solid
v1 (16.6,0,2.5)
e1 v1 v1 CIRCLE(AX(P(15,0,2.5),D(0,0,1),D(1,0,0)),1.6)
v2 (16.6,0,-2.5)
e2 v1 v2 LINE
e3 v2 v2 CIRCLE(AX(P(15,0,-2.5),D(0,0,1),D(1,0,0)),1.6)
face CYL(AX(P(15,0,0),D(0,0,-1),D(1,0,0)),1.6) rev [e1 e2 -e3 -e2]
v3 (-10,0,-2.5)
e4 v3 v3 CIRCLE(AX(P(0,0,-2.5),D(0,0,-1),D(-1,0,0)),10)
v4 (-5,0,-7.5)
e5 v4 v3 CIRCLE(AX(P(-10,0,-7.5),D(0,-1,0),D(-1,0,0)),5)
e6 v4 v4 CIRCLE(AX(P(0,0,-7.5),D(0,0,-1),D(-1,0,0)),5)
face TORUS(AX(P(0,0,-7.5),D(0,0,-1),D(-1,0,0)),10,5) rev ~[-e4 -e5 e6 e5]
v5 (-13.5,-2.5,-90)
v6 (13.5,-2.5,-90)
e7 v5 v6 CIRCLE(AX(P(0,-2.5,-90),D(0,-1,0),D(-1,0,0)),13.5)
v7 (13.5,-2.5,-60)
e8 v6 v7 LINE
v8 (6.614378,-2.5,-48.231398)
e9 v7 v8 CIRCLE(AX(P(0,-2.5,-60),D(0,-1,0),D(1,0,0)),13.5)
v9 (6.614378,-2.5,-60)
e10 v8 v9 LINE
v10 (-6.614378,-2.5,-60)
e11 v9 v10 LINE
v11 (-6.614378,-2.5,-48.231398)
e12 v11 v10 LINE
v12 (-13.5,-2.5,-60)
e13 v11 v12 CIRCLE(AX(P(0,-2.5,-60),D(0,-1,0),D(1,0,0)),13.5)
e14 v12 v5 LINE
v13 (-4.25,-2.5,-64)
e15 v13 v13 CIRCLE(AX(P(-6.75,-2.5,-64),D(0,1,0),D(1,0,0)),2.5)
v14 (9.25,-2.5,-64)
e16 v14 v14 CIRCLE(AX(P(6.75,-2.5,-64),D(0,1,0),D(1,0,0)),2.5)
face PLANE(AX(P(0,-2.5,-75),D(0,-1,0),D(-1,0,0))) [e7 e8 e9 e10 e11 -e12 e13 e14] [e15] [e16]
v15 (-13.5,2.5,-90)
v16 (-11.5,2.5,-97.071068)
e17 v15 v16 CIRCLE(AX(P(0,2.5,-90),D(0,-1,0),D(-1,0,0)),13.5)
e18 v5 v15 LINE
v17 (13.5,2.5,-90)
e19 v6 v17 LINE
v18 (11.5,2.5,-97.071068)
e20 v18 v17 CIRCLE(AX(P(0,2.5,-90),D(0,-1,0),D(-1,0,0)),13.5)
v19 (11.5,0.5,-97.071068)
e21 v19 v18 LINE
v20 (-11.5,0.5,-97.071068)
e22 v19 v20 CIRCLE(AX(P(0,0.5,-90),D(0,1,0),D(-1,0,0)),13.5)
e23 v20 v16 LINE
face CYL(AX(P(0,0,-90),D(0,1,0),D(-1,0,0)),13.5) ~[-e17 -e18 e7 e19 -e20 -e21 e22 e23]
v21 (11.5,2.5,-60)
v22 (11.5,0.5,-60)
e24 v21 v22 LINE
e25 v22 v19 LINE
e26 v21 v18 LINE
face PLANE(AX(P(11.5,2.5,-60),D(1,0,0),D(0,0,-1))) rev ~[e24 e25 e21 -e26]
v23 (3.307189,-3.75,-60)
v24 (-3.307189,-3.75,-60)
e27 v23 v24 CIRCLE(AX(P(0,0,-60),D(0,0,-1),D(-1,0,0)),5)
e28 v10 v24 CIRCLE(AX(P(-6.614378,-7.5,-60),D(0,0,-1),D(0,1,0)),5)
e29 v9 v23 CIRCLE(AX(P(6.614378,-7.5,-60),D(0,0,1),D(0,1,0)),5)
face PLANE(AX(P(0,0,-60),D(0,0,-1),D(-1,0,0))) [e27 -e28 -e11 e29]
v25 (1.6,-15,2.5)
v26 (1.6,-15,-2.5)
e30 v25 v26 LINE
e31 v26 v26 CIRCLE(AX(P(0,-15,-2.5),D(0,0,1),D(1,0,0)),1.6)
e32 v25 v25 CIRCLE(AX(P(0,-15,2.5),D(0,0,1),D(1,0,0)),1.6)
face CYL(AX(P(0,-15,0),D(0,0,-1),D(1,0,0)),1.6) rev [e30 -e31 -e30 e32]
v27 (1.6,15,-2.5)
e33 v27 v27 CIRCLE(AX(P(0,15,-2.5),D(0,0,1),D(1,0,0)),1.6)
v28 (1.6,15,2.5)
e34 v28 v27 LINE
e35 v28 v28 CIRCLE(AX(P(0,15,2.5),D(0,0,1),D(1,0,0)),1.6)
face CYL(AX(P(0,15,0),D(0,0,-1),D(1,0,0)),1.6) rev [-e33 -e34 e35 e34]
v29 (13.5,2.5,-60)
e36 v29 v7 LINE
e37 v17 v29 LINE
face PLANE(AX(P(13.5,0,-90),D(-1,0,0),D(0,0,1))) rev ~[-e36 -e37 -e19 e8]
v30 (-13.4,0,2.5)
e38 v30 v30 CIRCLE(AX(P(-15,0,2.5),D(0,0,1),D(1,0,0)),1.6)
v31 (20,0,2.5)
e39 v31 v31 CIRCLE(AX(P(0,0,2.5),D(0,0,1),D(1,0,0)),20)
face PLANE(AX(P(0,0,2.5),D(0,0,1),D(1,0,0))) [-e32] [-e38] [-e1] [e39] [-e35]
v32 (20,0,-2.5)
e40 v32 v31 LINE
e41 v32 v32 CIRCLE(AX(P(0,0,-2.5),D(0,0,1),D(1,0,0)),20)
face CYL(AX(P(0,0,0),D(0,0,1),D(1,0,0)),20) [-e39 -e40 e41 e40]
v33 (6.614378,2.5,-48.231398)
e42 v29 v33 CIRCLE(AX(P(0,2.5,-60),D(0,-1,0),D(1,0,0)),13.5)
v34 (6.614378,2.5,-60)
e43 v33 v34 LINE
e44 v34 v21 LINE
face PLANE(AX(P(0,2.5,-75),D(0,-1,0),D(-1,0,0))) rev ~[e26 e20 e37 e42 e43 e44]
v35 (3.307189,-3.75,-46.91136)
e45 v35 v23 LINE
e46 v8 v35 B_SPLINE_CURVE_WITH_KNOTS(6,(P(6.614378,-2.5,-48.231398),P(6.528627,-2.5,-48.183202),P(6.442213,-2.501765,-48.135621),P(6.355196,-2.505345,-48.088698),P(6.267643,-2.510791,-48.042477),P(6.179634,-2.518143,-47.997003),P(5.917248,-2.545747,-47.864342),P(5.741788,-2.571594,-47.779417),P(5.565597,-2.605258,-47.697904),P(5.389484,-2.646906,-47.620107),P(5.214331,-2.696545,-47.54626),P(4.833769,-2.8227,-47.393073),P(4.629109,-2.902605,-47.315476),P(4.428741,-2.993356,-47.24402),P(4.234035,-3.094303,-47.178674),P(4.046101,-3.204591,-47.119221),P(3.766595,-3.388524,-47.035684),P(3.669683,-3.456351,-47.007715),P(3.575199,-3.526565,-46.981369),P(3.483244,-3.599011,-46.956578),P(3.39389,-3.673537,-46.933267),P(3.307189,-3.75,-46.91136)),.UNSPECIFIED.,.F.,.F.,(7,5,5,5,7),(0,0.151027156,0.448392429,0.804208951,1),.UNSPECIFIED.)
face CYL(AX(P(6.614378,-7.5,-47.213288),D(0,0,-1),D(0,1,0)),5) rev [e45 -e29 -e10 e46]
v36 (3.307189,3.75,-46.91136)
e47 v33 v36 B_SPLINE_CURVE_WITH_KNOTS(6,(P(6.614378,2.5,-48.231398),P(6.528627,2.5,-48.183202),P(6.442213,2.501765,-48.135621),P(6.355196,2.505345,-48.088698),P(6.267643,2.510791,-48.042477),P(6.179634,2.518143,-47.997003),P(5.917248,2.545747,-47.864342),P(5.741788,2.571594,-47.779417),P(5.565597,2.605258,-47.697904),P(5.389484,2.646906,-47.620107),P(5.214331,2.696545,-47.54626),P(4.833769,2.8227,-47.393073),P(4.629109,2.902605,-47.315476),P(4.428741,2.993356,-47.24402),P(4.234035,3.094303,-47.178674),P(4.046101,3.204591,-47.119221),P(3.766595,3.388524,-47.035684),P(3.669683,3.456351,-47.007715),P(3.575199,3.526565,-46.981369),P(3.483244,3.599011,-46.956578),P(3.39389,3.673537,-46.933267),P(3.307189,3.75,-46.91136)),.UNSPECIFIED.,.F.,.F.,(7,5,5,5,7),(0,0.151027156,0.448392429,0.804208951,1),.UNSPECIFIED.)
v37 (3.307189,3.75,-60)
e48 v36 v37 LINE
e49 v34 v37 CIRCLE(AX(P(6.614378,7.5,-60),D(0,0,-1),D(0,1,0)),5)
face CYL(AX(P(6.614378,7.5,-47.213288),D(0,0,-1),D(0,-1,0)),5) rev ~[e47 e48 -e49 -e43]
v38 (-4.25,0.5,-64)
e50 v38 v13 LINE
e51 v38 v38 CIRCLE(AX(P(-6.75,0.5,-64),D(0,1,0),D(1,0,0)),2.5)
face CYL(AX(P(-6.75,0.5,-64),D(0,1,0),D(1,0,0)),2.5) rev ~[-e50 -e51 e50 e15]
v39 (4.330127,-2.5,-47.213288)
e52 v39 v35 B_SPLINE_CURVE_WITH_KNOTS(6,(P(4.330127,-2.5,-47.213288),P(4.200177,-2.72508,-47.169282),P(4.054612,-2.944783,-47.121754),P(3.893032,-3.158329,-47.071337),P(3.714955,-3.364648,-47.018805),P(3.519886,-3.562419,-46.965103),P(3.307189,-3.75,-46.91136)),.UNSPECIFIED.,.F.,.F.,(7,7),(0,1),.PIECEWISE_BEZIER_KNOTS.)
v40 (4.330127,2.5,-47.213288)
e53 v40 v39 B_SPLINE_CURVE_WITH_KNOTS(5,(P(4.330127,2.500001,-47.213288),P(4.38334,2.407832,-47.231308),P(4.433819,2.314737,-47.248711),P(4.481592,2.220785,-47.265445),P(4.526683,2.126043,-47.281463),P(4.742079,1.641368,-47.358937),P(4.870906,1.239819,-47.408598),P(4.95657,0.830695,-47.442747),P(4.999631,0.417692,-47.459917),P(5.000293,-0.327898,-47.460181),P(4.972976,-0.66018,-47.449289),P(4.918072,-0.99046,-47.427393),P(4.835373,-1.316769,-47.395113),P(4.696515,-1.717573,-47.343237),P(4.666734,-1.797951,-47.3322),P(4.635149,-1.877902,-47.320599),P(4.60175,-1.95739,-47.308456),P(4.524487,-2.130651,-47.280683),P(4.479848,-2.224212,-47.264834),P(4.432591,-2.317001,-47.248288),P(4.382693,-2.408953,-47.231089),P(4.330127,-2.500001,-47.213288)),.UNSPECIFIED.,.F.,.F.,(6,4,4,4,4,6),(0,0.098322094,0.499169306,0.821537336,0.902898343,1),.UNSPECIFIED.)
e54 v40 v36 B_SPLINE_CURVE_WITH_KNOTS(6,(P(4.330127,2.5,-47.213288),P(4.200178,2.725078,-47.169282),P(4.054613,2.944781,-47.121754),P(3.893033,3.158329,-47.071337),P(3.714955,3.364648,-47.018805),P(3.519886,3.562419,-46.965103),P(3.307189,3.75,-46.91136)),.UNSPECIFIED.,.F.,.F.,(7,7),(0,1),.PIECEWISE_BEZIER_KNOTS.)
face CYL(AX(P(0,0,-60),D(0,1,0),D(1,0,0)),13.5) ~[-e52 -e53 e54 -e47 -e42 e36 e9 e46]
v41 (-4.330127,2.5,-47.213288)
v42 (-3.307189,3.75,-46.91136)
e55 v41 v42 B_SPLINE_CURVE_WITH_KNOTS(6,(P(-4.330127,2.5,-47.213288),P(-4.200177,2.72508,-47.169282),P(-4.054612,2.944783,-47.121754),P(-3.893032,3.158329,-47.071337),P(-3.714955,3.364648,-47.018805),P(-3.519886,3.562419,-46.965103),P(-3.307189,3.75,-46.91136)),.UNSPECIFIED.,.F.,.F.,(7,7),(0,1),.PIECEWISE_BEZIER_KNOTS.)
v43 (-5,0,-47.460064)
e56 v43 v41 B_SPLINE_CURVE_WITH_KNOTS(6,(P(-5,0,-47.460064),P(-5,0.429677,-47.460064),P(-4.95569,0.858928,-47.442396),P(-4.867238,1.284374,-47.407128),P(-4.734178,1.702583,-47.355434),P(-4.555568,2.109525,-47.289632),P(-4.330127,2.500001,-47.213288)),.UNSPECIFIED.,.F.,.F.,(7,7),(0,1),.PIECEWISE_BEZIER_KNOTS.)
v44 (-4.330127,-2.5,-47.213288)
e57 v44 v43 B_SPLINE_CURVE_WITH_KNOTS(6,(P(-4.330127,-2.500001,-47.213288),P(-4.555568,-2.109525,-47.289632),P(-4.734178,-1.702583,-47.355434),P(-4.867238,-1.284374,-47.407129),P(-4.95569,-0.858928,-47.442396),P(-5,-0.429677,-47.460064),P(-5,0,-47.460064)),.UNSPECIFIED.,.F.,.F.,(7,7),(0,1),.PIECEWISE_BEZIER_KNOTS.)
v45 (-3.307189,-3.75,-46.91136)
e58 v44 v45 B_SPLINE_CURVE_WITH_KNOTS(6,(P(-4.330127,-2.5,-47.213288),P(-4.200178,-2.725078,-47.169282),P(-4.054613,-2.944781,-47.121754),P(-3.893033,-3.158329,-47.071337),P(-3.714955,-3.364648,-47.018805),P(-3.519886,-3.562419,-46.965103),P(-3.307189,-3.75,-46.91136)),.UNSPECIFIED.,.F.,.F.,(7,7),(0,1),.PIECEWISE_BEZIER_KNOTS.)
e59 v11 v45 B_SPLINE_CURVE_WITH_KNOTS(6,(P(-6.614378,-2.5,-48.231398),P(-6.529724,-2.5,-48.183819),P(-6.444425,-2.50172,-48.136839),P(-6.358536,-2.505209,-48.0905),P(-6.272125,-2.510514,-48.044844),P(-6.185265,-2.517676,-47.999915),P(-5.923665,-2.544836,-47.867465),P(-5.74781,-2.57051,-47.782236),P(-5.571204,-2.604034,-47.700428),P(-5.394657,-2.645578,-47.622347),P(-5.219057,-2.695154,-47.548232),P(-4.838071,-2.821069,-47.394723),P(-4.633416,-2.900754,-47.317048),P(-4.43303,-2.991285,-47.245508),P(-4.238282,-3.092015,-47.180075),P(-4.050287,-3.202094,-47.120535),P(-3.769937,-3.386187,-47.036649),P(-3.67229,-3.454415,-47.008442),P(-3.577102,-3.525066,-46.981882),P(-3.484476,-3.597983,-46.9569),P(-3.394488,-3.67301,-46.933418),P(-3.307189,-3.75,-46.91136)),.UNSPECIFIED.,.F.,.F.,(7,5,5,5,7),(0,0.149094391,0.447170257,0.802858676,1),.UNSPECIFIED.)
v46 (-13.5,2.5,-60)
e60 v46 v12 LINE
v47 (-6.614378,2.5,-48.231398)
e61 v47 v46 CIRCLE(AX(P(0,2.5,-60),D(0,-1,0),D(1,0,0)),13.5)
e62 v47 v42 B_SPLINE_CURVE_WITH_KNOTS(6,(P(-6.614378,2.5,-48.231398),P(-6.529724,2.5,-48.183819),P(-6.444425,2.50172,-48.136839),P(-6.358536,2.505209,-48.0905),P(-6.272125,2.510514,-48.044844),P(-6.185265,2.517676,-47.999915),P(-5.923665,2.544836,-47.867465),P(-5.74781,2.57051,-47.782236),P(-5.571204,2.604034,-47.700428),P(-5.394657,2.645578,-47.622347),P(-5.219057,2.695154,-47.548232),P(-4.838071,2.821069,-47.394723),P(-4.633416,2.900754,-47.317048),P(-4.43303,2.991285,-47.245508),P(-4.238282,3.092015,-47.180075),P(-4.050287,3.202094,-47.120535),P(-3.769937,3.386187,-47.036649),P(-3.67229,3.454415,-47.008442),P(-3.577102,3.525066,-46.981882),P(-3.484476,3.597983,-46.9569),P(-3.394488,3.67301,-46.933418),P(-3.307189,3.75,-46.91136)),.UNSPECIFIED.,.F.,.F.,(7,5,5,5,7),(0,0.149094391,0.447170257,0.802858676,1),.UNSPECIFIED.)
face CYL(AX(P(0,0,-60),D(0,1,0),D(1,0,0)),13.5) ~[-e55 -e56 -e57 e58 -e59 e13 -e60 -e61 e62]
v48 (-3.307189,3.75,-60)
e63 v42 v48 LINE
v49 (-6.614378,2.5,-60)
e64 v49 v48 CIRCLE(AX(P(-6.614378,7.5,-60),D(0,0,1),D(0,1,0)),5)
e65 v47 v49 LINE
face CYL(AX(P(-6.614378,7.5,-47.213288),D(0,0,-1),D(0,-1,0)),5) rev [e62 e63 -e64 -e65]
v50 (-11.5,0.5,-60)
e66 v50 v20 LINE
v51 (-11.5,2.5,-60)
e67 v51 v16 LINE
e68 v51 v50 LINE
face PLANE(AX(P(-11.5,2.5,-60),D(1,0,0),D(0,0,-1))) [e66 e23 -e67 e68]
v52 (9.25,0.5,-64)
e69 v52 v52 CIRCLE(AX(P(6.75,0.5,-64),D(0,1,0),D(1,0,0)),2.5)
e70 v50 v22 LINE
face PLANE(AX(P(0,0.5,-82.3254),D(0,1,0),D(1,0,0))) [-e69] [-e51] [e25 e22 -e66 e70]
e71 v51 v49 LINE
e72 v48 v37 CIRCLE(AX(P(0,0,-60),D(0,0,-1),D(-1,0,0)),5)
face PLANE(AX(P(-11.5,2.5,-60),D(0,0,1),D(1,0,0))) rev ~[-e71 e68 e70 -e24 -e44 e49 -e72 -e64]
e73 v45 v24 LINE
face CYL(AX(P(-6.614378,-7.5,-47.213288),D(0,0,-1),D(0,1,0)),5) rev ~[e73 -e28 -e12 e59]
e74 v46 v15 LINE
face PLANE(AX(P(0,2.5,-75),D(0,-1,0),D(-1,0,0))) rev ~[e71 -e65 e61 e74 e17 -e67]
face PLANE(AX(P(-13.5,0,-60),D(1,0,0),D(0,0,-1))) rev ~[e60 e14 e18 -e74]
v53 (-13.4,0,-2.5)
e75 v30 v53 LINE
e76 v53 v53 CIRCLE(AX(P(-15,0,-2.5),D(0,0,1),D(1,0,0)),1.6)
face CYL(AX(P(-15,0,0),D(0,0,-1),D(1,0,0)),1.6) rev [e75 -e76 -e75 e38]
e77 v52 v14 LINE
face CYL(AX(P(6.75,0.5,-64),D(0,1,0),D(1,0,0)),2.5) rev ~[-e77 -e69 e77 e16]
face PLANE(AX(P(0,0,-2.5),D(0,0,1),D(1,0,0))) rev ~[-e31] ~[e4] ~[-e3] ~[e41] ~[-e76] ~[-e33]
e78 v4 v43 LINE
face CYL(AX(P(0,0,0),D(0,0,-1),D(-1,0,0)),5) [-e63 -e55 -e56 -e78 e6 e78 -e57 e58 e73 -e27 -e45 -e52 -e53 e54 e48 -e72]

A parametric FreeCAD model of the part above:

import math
import FreeCAD as App
import Part
import Sketcher


def edges_at(feature, points):
    """Names of the edges that pass closest to the given points."""
    edges = feature.Shape.Edges
    near = lambda p: min(range(len(edges)), key=lambda i: edges[i].distToShape(Part.Vertex(*p))[0])
    return sorted({f"Edge{near(p) + 1}" for p in points})


def add_polygon(sketch, points):
    """Adds a closed chain of lines whose ends are joined by coincident constraints."""
    first, n = sketch.GeometryCount, len(points)
    for a, b in zip(points, points[1:] + points[:1]):
        sketch.addGeometry(Part.LineSegment(App.Vector(*a, 0), App.Vector(*b, 0)), False)
    for i in range(n):
        sketch.addConstraint(Sketcher.Constraint("Coincident", first + i, 2, first + (i + 1) % n, 1))

doc = App.newDocument("Part")
body = doc.addObject("PartDesign::Body", "Body")

sketch1 = doc.addObject("Sketcher::SketchObject", "Sketch")
body.addObject(sketch1)
sketch1.AttachmentSupport = (doc.XY_Plane, [""])
sketch1.MapMode = "FlatFace"
sketch1.addGeometry([
    Part.Circle(App.Vector(0, 0, 0), App.Vector(0, 0, 1), 20),
    Part.Circle(App.Vector(0, -15, 0), App.Vector(0, 0, 1), 1.6),
    Part.Circle(App.Vector(-15, 0, 0), App.Vector(0, 0, 1), 1.6),
    Part.Circle(App.Vector(0, 15, 0), App.Vector(0, 0, 1), 1.6),
    Part.Circle(App.Vector(15, 0, 0), App.Vector(0, 0, 1), 1.6),
], False)
sketch1.addConstraint([
    Sketcher.Constraint("Coincident", 0, 3, -1, 1),
    Sketcher.Constraint("Equal", 1, 2),
    Sketcher.Constraint("Equal", 2, 3),
    Sketcher.Constraint("Equal", 3, 4),
    Sketcher.Constraint("Symmetric", 1, 3, 3, 3, -1, 1),
    Sketcher.Constraint("Symmetric", 2, 3, 4, 3, -1, 1),
    Sketcher.Constraint("PointOnObject", 1, 3, -2),
    Sketcher.Constraint("PointOnObject", 2, 3, -1),
    Sketcher.Constraint("Diameter", 0, 40.0),
    Sketcher.Constraint("Diameter", 1, 3.2),
    Sketcher.Constraint("DistanceY", 1, 3, -1, 1, 15.0),
    Sketcher.Constraint("DistanceX", 2, 3, -1, 1, 15.0),
])
pad1 = doc.addObject("PartDesign::Pad", "Pad")
body.addObject(pad1)
pad1.Profile = sketch1
pad1.Length = 5
pad1.Midplane = True

sketch2 = doc.addObject("Sketcher::SketchObject", "Sketch001")
body.addObject(sketch2)
sketch2.AttachmentSupport = (doc.XY_Plane, [""])
sketch2.MapMode = "FlatFace"
sketch2.addGeometry(Part.Circle(App.Vector(0, 0, 0), App.Vector(0, 0, 1), 5), False)
sketch2.addConstraint([
    Sketcher.Constraint("Coincident", 0, 3, -1, 1),
    Sketcher.Constraint("Diameter", 0, 10.0),
])

sketch3 = doc.addObject("Sketcher::SketchObject", "Sketch002")
body.addObject(sketch3)
sketch3.AttachmentSupport = (doc.XZ_Plane, [""])
sketch3.MapMode = "FlatFace"
sketch3.addGeometry(Part.LineSegment(App.Vector(0, 0, 0), App.Vector(0, -60, 0)), False)
sketch3.addConstraint([
    Sketcher.Constraint("Vertical", 0),
    Sketcher.Constraint("Coincident", 0, 1, -1, 1),
    Sketcher.Constraint("DistanceY", 0, 2, 0, 1, 60.0),
])
doc.recompute()

additivepipe = doc.addObject("PartDesign::AdditivePipe", "AdditivePipe")
body.addObject(additivepipe)
additivepipe.Profile = sketch2
additivepipe.Spine = (sketch3, ["Edge1"])

sketch4 = doc.addObject("Sketcher::SketchObject", "Sketch003")
body.addObject(sketch4)
sketch4.AttachmentSupport = (doc.XZ_Plane, [""])
sketch4.MapMode = "FlatFace"
sketch4.addGeometry([
    Part.LineSegment(App.Vector(13.5, -60, 0), App.Vector(13.5, -90, 0)),
    Part.ArcOfCircle(Part.Circle(App.Vector(0, -90, 0), App.Vector(0, 0, 1), 13.5), math.radians(180), math.radians(360)),
    Part.LineSegment(App.Vector(-13.5, -90, 0), App.Vector(-13.5, -60, 0)),
    Part.ArcOfCircle(Part.Circle(App.Vector(0, -60, 0), App.Vector(0, 0, 1), 13.5), math.radians(0), math.radians(180)),
], False)
sketch4.addConstraint([
    Sketcher.Constraint("Tangent", 0, 2, 1, 2),
    Sketcher.Constraint("Tangent", 1, 1, 2, 1),
    Sketcher.Constraint("Tangent", 2, 2, 3, 2),
    Sketcher.Constraint("Tangent", 3, 1, 0, 1),
    Sketcher.Constraint("Vertical", 0),
    Sketcher.Constraint("Vertical", 2),
    Sketcher.Constraint("PointOnObject", 1, 3, -2),
    Sketcher.Constraint("Radius", 1, 13.5),
    Sketcher.Constraint("DistanceY", 0, 2, 0, 1, 30.0),
    Sketcher.Constraint("DistanceY", 1, 3, -1, 1, 90.0),
])
pad2 = doc.addObject("PartDesign::Pad", "Pad001")
body.addObject(pad2)
pad2.Profile = sketch4
pad2.Length = 5
pad2.Midplane = True

sketch5 = doc.addObject("Sketcher::SketchObject", "Sketch004")
body.addObject(sketch5)
sketch5.AttachmentSupport = (doc.XZ_Plane, [""])
sketch5.MapMode = "FlatFace"
sketch5.AttachmentOffset = App.Placement(App.Vector(0, 0, -2.5), App.Rotation())
add_polygon(sketch5, [(-11.5, -104.650801), (-11.5, -60), (11.5, -60), (11.5, -104.650801)])
sketch5.addConstraint([
    Sketcher.Constraint("Vertical", 0),
    Sketcher.Constraint("Horizontal", 1),
    Sketcher.Constraint("Vertical", 2),
    Sketcher.Constraint("Horizontal", 3),
    Sketcher.Constraint("DistanceX", 1, 1, 1, 2, 23.0),
    Sketcher.Constraint("DistanceY", 0, 2, -1, 1, 60.0),
    Sketcher.Constraint("DistanceX", 0, 2, -1, 1, 11.5),
    Sketcher.Constraint("DistanceY", 0, 1, 0, 2, 44.650801),
])
pocket1 = doc.addObject("PartDesign::Pocket", "Pocket")
body.addObject(pocket1)
pocket1.Profile = sketch5
pocket1.Length = 2
pocket1.Reversed = True

sketch6 = doc.addObject("Sketcher::SketchObject", "Sketch005")
body.addObject(sketch6)
sketch6.AttachmentSupport = (doc.XZ_Plane, [""])
sketch6.MapMode = "FlatFace"
sketch6.AttachmentOffset = App.Placement(App.Vector(0, 0, -0.5), App.Rotation())
sketch6.addGeometry([
    Part.Circle(App.Vector(-6.75, -64, 0), App.Vector(0, 0, 1), 2.5),
    Part.Circle(App.Vector(6.75, -64, 0), App.Vector(0, 0, 1), 2.5),
], False)
sketch6.addConstraint([
    Sketcher.Constraint("Equal", 0, 1),
    Sketcher.Constraint("Symmetric", 0, 3, 1, 3, -2),
    Sketcher.Constraint("Diameter", 0, 5.0),
    Sketcher.Constraint("DistanceY", 0, 3, -1, 1, 64.0),
    Sketcher.Constraint("DistanceX", 0, 3, 1, 3, 13.5),
])
pocket2 = doc.addObject("PartDesign::Pocket", "Pocket001")
body.addObject(pocket2)
pocket2.Profile = sketch6
pocket2.Type = "ThroughAll"
pocket2.Reversed = True
doc.recompute()

fillet = doc.addObject("PartDesign::Fillet", "Fillet")
body.addObject(fillet)
fillet.Base = (pocket2, edges_at(pocket2, [
    (5, 0, -2.5),
    (4.33, -2.5, -53.607),
    (-4.33, -2.5, -53.607),
    (4.33, 2.5, -53.607),
    (-4.33, 2.5, -53.607),
]))
fillet.Radius = 5

doc.recompute()
